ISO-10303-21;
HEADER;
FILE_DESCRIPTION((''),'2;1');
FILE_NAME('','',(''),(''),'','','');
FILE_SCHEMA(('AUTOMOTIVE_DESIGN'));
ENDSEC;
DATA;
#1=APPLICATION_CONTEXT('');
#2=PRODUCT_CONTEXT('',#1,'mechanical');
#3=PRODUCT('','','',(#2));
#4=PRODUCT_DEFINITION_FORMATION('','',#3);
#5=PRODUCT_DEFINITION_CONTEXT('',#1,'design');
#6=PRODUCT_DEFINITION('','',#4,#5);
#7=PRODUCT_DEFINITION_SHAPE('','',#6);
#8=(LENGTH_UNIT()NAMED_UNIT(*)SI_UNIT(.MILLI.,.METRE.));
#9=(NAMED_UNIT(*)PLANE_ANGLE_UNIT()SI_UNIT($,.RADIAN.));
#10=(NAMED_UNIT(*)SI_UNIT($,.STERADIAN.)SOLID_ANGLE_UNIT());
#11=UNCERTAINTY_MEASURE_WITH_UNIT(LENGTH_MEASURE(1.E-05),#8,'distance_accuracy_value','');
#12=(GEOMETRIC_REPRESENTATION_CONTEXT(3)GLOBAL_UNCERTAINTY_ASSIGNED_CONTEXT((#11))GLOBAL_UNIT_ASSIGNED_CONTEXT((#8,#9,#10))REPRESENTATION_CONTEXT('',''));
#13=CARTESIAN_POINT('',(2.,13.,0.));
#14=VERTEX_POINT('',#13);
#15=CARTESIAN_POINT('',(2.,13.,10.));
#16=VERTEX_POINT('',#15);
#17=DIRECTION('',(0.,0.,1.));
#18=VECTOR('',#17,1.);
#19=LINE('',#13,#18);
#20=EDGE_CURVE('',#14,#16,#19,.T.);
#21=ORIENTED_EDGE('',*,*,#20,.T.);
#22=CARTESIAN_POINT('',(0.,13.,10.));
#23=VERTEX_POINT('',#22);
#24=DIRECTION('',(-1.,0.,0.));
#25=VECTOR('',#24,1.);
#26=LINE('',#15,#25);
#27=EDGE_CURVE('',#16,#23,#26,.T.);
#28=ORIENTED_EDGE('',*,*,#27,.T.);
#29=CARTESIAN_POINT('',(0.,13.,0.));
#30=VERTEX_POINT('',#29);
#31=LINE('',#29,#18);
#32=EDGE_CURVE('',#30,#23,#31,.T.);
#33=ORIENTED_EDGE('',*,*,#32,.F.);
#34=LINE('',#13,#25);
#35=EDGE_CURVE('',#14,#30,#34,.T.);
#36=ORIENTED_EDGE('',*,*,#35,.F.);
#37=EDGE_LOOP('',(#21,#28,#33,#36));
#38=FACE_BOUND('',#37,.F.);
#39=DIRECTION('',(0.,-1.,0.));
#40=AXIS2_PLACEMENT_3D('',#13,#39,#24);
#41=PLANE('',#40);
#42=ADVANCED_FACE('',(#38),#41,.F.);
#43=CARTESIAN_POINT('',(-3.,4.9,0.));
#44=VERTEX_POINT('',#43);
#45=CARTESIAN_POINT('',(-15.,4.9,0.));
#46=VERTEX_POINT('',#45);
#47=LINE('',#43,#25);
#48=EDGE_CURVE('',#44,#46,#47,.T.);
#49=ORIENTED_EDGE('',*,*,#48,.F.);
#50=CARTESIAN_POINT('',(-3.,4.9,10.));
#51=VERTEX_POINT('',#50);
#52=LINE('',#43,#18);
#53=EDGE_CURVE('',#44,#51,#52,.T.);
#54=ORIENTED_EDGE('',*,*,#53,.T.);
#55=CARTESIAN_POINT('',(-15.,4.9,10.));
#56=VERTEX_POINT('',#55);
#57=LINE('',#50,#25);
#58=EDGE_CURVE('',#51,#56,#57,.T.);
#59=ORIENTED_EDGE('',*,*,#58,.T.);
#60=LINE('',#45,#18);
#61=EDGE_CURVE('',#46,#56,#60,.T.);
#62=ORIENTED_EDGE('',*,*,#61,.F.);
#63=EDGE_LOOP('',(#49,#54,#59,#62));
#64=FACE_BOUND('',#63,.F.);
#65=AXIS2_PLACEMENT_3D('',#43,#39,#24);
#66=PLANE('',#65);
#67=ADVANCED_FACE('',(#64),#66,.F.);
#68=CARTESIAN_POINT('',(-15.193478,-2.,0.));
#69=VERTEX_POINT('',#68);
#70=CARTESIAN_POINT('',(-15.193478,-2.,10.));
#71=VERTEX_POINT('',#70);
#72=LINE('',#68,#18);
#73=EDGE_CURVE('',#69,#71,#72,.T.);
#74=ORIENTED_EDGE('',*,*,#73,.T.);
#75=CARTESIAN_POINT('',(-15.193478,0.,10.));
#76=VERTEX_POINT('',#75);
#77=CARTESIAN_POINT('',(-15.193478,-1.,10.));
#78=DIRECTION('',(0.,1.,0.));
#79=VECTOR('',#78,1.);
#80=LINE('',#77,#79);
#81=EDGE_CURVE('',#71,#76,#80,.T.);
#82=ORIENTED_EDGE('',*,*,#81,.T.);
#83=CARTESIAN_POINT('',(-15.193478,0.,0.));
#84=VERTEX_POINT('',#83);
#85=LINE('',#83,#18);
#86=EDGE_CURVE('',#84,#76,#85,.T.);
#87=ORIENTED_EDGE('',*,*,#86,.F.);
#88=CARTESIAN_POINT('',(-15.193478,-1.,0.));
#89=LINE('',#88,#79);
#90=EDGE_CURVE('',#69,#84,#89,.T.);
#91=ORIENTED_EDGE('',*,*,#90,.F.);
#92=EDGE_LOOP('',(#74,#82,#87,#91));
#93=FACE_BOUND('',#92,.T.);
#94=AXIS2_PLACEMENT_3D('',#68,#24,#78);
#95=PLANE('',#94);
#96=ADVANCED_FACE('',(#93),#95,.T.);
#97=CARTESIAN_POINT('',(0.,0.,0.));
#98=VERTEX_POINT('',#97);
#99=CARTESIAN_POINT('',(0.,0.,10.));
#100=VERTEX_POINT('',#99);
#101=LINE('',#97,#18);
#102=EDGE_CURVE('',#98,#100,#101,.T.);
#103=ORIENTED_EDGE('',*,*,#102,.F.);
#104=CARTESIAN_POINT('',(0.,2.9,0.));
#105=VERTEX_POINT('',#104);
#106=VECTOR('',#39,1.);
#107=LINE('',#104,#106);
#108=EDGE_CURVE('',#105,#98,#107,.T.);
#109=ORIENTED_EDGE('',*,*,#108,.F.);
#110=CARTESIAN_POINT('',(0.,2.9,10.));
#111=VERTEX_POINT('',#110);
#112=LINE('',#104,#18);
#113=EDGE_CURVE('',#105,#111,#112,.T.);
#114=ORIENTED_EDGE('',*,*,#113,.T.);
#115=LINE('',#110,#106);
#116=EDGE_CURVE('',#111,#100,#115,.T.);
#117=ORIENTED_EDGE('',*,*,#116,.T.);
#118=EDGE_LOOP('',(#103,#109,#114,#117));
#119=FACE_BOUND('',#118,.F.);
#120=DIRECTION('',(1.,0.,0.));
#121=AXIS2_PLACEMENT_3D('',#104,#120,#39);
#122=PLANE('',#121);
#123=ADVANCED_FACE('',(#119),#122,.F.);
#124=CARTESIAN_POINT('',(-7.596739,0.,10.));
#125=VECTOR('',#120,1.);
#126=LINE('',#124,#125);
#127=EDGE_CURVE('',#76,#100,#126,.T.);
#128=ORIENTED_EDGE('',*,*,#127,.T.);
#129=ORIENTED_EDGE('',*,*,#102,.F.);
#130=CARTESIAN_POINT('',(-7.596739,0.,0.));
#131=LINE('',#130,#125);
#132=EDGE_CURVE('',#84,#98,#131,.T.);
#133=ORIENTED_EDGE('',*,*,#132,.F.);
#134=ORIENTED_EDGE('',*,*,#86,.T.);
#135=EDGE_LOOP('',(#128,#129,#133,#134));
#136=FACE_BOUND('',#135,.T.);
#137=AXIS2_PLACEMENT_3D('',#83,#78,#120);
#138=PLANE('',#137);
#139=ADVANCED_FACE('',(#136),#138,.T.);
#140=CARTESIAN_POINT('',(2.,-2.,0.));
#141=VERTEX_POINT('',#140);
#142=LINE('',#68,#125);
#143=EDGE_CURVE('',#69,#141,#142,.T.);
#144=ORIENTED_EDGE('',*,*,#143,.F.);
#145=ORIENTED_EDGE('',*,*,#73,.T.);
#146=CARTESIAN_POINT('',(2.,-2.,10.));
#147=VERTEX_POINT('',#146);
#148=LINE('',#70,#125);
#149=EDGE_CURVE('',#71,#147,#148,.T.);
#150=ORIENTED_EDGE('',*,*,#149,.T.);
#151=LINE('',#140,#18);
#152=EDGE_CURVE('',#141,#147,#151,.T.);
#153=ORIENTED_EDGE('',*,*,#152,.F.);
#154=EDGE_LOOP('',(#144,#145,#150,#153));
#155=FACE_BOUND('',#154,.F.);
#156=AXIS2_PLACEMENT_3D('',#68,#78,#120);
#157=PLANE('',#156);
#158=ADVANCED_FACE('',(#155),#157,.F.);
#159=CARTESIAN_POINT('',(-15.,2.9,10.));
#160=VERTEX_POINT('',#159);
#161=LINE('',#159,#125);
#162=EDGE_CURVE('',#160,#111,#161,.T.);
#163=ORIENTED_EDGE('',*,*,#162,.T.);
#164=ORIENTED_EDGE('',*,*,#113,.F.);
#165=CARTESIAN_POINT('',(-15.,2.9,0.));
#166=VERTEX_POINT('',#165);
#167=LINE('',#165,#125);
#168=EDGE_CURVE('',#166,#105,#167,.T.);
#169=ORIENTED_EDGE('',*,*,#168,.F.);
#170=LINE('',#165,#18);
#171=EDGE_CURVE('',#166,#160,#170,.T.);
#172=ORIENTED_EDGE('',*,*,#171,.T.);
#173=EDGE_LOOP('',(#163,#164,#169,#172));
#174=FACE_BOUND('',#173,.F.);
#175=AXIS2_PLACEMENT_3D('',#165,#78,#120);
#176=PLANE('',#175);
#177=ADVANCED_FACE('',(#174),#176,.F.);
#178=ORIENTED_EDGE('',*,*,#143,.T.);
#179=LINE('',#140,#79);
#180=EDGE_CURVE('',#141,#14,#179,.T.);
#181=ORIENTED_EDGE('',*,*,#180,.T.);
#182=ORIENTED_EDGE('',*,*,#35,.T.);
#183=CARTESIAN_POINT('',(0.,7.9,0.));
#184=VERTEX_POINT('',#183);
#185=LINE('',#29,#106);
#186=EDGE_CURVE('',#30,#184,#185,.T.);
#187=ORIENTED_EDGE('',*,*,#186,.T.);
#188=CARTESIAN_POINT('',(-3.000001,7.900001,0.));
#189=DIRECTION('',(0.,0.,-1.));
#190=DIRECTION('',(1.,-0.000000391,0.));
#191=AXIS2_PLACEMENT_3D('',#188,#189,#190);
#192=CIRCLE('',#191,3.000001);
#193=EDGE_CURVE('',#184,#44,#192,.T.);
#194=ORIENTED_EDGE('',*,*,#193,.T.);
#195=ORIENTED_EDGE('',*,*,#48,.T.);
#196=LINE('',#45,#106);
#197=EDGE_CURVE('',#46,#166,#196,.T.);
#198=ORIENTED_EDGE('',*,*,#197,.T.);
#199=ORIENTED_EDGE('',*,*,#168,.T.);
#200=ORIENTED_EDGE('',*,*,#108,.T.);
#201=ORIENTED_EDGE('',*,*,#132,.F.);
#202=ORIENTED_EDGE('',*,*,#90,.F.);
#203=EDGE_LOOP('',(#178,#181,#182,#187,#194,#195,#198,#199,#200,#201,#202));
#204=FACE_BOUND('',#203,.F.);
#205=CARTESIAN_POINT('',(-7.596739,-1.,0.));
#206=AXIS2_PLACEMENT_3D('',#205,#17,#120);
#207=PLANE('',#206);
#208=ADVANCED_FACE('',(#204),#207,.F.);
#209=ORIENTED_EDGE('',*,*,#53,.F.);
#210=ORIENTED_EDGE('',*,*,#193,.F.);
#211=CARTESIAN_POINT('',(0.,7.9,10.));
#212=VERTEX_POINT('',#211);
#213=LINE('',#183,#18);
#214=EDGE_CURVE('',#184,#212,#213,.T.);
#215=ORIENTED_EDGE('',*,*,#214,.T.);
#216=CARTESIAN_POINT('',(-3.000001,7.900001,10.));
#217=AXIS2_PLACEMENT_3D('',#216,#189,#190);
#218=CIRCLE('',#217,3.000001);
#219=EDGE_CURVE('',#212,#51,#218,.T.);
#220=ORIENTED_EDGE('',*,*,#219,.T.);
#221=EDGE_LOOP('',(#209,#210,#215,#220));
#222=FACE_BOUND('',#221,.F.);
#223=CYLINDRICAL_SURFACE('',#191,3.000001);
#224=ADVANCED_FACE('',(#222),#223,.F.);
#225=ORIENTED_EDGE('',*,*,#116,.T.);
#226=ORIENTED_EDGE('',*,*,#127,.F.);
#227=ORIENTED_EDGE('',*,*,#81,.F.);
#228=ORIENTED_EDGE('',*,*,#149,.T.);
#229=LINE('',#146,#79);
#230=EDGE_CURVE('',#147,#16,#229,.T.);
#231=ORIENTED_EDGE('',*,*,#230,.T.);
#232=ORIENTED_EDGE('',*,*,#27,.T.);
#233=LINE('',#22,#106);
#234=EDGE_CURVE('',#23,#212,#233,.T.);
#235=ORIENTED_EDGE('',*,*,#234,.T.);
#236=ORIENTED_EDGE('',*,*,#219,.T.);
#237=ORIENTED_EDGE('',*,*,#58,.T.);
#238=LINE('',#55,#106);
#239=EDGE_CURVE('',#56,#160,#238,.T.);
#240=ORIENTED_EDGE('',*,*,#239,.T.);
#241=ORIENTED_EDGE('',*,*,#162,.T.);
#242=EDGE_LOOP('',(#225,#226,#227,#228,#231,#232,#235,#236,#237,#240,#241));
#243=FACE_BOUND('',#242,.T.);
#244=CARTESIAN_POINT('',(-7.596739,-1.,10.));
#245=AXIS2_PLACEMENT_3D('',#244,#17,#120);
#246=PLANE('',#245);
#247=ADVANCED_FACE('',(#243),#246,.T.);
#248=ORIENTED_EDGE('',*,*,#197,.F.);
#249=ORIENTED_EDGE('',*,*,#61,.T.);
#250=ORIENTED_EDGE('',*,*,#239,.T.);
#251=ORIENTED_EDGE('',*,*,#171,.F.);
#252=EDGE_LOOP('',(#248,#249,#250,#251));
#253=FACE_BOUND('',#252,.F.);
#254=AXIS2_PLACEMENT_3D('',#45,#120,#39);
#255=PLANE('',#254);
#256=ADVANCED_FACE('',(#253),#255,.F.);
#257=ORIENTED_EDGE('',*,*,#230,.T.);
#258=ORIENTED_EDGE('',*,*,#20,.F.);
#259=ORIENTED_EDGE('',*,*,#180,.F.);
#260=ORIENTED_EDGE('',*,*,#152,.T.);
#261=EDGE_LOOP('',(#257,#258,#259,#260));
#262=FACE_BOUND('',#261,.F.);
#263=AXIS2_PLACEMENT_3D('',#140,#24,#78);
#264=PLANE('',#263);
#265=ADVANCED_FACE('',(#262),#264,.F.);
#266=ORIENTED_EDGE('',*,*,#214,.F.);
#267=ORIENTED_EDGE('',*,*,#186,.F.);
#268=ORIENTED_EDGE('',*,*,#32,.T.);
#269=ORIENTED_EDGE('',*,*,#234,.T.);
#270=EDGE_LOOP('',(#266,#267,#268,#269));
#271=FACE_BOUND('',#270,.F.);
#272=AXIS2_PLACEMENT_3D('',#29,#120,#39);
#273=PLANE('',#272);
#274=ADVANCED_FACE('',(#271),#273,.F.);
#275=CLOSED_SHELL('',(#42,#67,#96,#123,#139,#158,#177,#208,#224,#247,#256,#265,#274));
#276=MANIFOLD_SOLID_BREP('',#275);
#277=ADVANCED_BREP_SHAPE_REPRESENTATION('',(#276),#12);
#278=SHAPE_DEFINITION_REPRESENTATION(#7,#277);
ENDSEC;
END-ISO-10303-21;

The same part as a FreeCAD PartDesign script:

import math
import FreeCAD as App
import Part
import Sketcher

doc = App.newDocument("Part")
body = doc.addObject("PartDesign::Body", "Body")

sketch1 = body.newObject("Sketcher::SketchObject", "Sketch")
sketch1.AttachmentSupport = (doc.getObject("XY_Plane"), [""])
sketch1.MapMode = "FlatFace"
sketch1.addGeometry(Part.LineSegment(App.Vector(-15.193478, 0, 0), App.Vector(-15.193478, -2, 0)), False)
sketch1.addGeometry(Part.LineSegment(App.Vector(-15.193478, -2, 0), App.Vector(2, -2, 0)), False)
sketch1.addGeometry(Part.LineSegment(App.Vector(2, -2, 0), App.Vector(2, 13, 0)), False)
sketch1.addGeometry(Part.LineSegment(App.Vector(2, 13, 0), App.Vector(0, 13, 0)), False)
sketch1.addGeometry(Part.LineSegment(App.Vector(0, 13, 0), App.Vector(0, 7.9, 0)), False)
sketch1.addGeometry(Part.ArcOfCircle(Part.Circle(App.Vector(-3.000001, 7.900001, 0), App.Vector(0, 0, 1), 3.000001), math.radians(-89.999978), math.radians(-0.000022)), False)
sketch1.addGeometry(Part.LineSegment(App.Vector(-3, 4.9, 0), App.Vector(-15, 4.9, 0)), False)
sketch1.addGeometry(Part.LineSegment(App.Vector(-15, 4.9, 0), App.Vector(-15, 2.9, 0)), False)
sketch1.addGeometry(Part.LineSegment(App.Vector(-15, 2.9, 0), App.Vector(0, 2.9, 0)), False)
sketch1.addGeometry(Part.LineSegment(App.Vector(0, 2.9, 0), App.Vector(0, 0, 0)), False)
sketch1.addGeometry(Part.LineSegment(App.Vector(0, 0, 0), App.Vector(-15.193478, 0, 0)), False)
sketch1.addConstraint(Sketcher.Constraint("Coincident", 0, 2, 1, 1))
sketch1.addConstraint(Sketcher.Constraint("Coincident", 1, 2, 2, 1))
sketch1.addConstraint(Sketcher.Constraint("Coincident", 2, 2, 3, 1))
sketch1.addConstraint(Sketcher.Constraint("Coincident", 3, 2, 4, 1))
sketch1.addConstraint(Sketcher.Constraint("Tangent", 4, 2, 5, 2))
sketch1.addConstraint(Sketcher.Constraint("Tangent", 5, 1, 6, 1))
sketch1.addConstraint(Sketcher.Constraint("Coincident", 6, 2, 7, 1))
sketch1.addConstraint(Sketcher.Constraint("Coincident", 7, 2, 8, 1))
sketch1.addConstraint(Sketcher.Constraint("Coincident", 8, 2, 9, 1))
sketch1.addConstraint(Sketcher.Constraint("Coincident", 9, 2, 10, 1))
sketch1.addConstraint(Sketcher.Constraint("Coincident", 10, 2, 0, 1))
sketch1.addConstraint(Sketcher.Constraint("Vertical", 0))
sketch1.addConstraint(Sketcher.Constraint("Horizontal", 1))
sketch1.addConstraint(Sketcher.Constraint("Vertical", 2))
sketch1.addConstraint(Sketcher.Constraint("Horizontal", 3))
sketch1.addConstraint(Sketcher.Constraint("Vertical", 4))
sketch1.addConstraint(Sketcher.Constraint("Horizontal", 6))
sketch1.addConstraint(Sketcher.Constraint("Vertical", 7))
sketch1.addConstraint(Sketcher.Constraint("Horizontal", 8))
sketch1.addConstraint(Sketcher.Constraint("Vertical", 9))
sketch1.addConstraint(Sketcher.Constraint("Horizontal", 10))
sketch1.addConstraint(Sketcher.Constraint("Coincident", 9, 2, -1, 1))
sketch1.addConstraint(Sketcher.Constraint("PointOnObject", 3, 2, -2))
sketch1.addConstraint(Sketcher.Constraint("Equal", 3, 0))
sketch1.addConstraint(Sketcher.Constraint("Equal", 8, 2))
sketch1.addConstraint(Sketcher.Constraint("Equal", 0, 7))
sketch1.addConstraint(Sketcher.Constraint("Radius", 5, 3.000001))
sketch1.addConstraint(Sketcher.Constraint("DistanceX", 3, 2, 3, 1, 2.0))
sketch1.addConstraint(Sketcher.Constraint("DistanceX", 6, 2, 6, 1, 12.0))
sketch1.addConstraint(Sketcher.Constraint("DistanceY", 4, 2, 4, 1, 5.1))
sketch1.addConstraint(Sketcher.Constraint("DistanceX", 1, 1, 1, 2, 17.193478))
pad1 = body.newObject("PartDesign::Pad", "Pad")
pad1.Profile = sketch1
pad1.Length = 10

doc.recompute()
